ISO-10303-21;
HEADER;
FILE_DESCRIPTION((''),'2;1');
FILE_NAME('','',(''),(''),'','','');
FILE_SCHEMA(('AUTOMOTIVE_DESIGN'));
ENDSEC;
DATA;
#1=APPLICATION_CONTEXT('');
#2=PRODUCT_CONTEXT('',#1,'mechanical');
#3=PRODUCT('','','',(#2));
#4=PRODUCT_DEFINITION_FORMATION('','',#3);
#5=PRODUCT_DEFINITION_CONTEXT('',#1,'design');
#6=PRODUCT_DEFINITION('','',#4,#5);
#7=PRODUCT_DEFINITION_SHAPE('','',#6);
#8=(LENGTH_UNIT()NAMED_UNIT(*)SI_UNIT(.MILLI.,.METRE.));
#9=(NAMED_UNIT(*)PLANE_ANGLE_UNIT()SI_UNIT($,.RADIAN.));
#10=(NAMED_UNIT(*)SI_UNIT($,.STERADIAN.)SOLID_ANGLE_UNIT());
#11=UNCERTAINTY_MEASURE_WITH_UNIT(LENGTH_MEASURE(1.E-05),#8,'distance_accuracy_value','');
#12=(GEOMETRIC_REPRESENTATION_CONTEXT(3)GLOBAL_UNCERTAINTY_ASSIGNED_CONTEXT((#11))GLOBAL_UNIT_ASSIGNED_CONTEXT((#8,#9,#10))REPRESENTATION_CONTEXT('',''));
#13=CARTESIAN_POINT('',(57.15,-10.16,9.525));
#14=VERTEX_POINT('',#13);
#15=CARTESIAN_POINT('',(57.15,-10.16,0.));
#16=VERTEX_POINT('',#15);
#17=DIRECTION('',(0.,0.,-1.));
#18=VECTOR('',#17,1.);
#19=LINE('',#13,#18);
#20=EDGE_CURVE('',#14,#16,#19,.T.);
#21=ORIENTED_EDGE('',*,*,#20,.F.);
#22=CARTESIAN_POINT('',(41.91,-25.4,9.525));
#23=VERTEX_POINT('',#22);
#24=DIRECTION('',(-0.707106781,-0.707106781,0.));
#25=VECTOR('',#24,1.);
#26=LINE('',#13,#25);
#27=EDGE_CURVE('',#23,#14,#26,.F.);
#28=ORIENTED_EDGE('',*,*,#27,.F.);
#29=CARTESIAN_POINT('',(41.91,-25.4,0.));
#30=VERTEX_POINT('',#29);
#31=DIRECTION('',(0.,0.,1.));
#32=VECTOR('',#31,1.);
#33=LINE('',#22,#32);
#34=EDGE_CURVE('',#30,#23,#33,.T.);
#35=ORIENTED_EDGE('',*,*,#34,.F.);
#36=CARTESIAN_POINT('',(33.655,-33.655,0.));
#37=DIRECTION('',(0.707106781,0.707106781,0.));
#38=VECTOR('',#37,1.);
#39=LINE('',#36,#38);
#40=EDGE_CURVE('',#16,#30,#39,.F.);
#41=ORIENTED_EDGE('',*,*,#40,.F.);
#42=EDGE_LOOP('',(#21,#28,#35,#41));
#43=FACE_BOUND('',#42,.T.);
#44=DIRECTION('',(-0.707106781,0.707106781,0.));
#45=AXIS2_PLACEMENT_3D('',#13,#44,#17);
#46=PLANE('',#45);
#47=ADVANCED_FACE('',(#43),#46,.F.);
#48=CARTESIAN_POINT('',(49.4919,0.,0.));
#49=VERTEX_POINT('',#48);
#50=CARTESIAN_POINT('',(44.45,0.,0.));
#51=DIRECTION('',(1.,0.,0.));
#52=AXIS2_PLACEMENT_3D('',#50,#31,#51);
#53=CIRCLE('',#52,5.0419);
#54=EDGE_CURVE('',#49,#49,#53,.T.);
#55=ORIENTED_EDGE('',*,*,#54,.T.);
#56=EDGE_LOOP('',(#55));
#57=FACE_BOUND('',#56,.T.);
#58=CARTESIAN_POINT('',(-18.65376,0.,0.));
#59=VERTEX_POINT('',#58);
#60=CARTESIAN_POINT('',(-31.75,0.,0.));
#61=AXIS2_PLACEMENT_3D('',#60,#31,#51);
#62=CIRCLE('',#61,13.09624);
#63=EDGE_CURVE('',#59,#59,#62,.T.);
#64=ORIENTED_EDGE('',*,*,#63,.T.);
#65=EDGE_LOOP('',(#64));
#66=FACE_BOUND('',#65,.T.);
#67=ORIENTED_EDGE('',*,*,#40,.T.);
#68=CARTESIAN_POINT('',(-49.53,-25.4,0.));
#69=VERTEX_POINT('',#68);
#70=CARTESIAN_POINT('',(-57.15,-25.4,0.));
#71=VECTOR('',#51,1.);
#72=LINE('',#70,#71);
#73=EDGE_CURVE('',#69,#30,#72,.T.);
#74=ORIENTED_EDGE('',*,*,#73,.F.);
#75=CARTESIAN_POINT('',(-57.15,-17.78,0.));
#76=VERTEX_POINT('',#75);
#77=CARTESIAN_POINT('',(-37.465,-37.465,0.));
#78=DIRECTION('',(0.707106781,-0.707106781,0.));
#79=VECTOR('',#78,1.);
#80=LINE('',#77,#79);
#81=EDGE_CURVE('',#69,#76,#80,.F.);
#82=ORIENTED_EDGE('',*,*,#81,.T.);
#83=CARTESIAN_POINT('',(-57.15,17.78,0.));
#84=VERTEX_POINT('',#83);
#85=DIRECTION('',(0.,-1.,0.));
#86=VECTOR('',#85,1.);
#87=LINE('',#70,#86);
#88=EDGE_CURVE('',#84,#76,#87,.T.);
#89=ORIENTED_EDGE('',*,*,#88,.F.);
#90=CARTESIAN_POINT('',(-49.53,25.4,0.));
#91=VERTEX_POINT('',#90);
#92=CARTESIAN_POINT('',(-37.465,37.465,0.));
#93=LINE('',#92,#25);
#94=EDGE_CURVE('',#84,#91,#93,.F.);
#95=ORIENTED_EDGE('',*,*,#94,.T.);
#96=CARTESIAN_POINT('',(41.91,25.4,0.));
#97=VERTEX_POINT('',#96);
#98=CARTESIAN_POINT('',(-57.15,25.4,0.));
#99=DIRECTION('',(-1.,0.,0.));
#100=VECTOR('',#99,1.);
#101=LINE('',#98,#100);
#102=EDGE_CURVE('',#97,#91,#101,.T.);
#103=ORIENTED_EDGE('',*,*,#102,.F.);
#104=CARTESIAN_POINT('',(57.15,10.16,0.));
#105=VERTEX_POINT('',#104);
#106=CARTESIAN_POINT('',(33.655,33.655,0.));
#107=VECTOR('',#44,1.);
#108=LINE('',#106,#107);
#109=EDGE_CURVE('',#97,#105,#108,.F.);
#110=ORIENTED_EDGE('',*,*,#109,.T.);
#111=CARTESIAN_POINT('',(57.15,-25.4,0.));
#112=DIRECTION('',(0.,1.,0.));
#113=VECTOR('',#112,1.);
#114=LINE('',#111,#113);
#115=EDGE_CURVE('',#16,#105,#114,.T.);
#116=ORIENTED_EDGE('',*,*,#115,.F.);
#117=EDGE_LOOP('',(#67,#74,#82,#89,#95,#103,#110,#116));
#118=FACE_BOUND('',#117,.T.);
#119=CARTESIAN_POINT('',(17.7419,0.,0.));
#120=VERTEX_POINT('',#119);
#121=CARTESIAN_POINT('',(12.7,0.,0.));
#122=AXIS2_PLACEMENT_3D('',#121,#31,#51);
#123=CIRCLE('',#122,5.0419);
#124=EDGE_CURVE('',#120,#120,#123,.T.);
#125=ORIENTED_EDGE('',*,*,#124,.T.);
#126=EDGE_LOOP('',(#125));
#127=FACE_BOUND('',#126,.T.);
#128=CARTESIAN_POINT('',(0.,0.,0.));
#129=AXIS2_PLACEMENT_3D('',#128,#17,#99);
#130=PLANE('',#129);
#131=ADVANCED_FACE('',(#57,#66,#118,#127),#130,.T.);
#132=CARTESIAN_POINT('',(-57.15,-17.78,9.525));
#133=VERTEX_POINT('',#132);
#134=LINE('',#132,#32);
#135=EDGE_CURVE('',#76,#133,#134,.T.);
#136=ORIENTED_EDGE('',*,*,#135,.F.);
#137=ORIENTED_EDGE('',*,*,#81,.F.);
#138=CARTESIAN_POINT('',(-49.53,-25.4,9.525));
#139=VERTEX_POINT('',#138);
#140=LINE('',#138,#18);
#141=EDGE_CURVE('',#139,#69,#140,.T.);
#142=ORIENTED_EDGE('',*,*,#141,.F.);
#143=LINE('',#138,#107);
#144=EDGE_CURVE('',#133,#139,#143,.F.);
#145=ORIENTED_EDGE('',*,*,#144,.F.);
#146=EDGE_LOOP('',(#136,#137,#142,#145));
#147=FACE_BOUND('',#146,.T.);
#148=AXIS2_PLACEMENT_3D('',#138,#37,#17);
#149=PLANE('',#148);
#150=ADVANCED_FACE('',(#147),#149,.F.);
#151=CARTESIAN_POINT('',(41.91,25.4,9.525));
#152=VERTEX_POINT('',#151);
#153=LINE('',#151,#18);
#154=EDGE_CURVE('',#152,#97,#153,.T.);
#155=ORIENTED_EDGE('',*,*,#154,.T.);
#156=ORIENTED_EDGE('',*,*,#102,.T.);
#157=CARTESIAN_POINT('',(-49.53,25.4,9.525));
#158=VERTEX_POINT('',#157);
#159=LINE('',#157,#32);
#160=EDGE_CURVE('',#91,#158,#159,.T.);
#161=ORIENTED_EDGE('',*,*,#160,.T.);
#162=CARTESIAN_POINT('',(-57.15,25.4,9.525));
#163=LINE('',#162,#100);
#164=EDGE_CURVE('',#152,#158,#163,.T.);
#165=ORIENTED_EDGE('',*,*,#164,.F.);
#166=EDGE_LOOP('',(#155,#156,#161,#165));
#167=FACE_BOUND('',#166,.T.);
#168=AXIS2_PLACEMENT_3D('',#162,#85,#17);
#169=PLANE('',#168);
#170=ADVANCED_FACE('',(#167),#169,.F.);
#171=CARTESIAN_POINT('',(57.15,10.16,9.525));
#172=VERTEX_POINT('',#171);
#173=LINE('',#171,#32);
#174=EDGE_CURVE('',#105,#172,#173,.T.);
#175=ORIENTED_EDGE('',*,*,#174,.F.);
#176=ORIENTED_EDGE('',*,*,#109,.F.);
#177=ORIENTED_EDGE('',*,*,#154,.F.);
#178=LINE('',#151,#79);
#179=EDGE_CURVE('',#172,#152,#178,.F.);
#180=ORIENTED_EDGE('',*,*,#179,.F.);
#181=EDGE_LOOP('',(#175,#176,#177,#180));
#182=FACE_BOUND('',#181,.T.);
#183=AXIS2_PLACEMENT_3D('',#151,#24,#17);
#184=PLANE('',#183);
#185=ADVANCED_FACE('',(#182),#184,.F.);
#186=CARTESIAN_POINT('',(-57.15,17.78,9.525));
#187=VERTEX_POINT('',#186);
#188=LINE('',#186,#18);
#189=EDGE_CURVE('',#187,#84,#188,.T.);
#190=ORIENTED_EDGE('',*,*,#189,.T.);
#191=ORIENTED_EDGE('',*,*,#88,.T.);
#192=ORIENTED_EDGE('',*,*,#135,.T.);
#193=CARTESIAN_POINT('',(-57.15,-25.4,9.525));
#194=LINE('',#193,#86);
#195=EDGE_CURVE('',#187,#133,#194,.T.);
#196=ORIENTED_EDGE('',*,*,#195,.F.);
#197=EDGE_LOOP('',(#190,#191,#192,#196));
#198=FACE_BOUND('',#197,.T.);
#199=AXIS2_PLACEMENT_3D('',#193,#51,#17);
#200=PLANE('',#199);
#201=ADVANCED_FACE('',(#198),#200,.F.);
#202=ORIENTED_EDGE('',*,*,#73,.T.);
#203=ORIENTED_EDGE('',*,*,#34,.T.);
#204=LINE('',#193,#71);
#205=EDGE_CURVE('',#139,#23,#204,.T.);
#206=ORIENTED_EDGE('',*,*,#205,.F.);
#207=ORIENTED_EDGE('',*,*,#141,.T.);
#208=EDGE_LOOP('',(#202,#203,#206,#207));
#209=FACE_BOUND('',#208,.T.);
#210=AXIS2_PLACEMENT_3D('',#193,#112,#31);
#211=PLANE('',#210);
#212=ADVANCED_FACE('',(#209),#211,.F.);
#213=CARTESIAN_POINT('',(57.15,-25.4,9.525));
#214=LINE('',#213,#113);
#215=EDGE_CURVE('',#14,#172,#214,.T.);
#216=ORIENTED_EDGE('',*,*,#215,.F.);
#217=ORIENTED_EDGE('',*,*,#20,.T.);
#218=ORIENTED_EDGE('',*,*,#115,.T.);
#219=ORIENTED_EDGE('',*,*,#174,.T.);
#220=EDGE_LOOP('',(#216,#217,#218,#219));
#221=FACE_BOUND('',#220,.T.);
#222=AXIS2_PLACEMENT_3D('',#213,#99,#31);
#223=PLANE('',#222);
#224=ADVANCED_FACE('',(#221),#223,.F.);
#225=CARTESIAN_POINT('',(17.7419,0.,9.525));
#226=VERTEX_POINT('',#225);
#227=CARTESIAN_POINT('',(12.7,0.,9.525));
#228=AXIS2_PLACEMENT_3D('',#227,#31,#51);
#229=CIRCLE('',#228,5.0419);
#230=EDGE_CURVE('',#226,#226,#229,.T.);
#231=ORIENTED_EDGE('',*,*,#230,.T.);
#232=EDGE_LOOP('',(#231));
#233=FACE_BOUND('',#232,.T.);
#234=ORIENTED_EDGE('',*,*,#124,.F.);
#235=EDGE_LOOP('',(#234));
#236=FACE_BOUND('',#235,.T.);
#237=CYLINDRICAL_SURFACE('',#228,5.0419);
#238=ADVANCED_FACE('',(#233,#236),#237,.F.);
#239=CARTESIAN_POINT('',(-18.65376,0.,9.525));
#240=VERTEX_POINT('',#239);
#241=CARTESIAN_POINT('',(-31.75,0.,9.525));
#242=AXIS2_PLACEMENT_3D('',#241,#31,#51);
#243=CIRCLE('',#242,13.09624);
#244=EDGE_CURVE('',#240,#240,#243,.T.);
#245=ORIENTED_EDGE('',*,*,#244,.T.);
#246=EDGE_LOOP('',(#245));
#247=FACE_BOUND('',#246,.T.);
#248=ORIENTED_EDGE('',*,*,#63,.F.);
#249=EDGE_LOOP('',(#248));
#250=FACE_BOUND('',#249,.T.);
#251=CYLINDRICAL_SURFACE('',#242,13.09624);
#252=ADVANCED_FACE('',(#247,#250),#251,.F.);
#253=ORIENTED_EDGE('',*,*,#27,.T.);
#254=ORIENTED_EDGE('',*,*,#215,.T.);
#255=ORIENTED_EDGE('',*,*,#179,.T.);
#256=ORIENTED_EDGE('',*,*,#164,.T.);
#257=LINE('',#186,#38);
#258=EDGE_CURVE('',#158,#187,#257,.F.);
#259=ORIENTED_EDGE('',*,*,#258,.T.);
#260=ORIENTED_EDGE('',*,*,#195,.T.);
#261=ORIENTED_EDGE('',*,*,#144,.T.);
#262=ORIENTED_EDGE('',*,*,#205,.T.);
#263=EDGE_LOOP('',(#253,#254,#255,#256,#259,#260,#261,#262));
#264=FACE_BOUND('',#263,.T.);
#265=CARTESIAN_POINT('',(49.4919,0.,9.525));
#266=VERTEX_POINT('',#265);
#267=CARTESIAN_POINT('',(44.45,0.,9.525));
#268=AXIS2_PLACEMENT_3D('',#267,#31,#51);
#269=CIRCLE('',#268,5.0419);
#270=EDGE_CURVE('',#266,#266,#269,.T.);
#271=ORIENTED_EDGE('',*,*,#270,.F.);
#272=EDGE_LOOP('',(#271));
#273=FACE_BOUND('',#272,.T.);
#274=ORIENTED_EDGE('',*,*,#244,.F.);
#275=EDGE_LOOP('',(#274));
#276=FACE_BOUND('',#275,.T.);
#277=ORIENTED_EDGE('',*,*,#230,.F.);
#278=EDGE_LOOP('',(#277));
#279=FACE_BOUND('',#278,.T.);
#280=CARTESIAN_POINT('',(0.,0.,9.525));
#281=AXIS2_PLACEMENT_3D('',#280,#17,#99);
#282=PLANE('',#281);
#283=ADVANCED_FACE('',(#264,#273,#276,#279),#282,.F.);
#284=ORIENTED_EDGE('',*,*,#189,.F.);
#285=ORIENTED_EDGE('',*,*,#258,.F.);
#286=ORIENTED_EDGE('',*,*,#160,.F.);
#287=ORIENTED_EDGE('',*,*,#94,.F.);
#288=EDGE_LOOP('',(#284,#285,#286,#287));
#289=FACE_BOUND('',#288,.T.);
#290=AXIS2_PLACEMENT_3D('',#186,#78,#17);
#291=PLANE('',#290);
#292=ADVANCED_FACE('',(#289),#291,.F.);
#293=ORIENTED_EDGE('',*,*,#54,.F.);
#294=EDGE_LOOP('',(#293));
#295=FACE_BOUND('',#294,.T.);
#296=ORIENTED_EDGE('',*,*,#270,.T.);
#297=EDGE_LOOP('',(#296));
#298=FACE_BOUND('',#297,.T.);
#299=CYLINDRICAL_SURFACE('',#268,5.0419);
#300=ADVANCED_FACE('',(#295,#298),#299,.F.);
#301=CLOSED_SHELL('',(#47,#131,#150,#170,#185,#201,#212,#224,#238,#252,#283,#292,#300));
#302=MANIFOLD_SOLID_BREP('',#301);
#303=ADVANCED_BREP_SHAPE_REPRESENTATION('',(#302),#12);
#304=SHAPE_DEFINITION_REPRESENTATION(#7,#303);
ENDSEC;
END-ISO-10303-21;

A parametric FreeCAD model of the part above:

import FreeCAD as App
import Part
import Sketcher
from FreeCAD import Vector
Q = App.Units.Quantity


def edges_at(feature, points):
    """Names of the edges that pass closest to the given points."""
    edges = feature.Shape.Edges
    near = lambda p: min(range(len(edges)), key=lambda i: edges[i].distToShape(Part.Vertex(*p))[0])
    return sorted({f"Edge{near(p) + 1}" for p in points})


def add_polygon(sketch, points):
    """Adds a closed chain of lines whose ends are joined by coincident constraints."""
    first, n = sketch.GeometryCount, len(points)
    for a, b in zip(points, points[1:] + points[:1]):
        sketch.addGeometry(Part.LineSegment(App.Vector(*a, 0), App.Vector(*b, 0)), False)
    for i in range(n):
        sketch.addConstraint(Sketcher.Constraint("Coincident", first + i, 2, first + (i + 1) % n, 1))

doc = App.newDocument("Part")
body = doc.addObject("PartDesign::Body", "Body")

sketch1 = body.newObject("Sketcher::SketchObject", "Sketch")
sketch1.AttachmentSupport = (doc.getObject("XY_Plane"), [""])
sketch1.MapMode = "FlatFace"
add_polygon(sketch1, [(-57, 25), (-57, -25), (57, -25), (57, 25)])
sketch1.addConstraint(Sketcher.Constraint("Vertical", 0))
sketch1.addConstraint(Sketcher.Constraint("Horizontal", 1))
sketch1.addConstraint(Sketcher.Constraint("Vertical", 2))
sketch1.addConstraint(Sketcher.Constraint("Horizontal", 3))
sketch1.addConstraint(Sketcher.Constraint("Symmetric", 0, 2, 2, 2, -1, 1))
sketch1.addConstraint(Sketcher.Constraint("DistanceY", 0, 2, 0, 1, Q("2 in")))
sketch1.addConstraint(Sketcher.Constraint("DistanceX", 1, 1, 1, 2, Q("4.5 in")))
pad1 = body.newObject("PartDesign::Pad", "Pad")
pad1.Profile = sketch1
pad1.Length = Q("0.375 in")

sketch2 = body.newObject("Sketcher::SketchObject", "Sketch001")
sketch2.AttachmentSupport = (doc.getObject("XY_Plane"), [""])
sketch2.MapMode = "FlatFace"
sketch2.AttachmentOffset = App.Placement(Vector(0, 0, 0.375 * 25.4), App.Rotation())
sketch2.addGeometry(Part.Circle(Vector(44, 0, 0), Vector(0, 0, 1), 5), False)
sketch2.addGeometry(Part.Circle(Vector(13, 0, 0), Vector(0, 0, 1), 5), False)
sketch2.addConstraint(Sketcher.Constraint("Equal", 0, 1))
sketch2.addConstraint(Sketcher.Constraint("PointOnObject", 0, 3, -1))
sketch2.addConstraint(Sketcher.Constraint("PointOnObject", 1, 3, -1))
sketch2.addConstraint(Sketcher.Constraint("Diameter", 0, Q("0.397 in")))
sketch2.addConstraint(Sketcher.Constraint("DistanceX", -1, 1, 1, 3, Q("0.5 in")))
sketch2.addConstraint(Sketcher.Constraint("DistanceX", -1, 1, 0, 3, Q("1.75 in")))
doc.recompute()
hole = body.newObject("PartDesign::Hole", "Hole")
hole.Profile = sketch2
hole.ThreadType = "None"
hole.Diameter = Q("0.397 in")
hole.DepthType = "ThroughAll"

sketch3 = body.newObject("Sketcher::SketchObject", "Sketch002")
sketch3.AttachmentSupport = (doc.getObject("XY_Plane"), [""])
sketch3.MapMode = "FlatFace"
sketch3.AttachmentOffset = App.Placement(Vector(0, 0, 0.375 * 25.4), App.Rotation())
sketch3.addGeometry(Part.Circle(Vector(-32, 0, 0), Vector(0, 0, 1), 13), False)
sketch3.addConstraint(Sketcher.Constraint("PointOnObject", 0, 3, -1))
sketch3.addConstraint(Sketcher.Constraint("Diameter", 0, Q("1.0312 in")))
sketch3.addConstraint(Sketcher.Constraint("DistanceX", 0, 3, -1, 1, Q("1.25 in")))
doc.recompute()
hole2 = body.newObject("PartDesign::Hole", "Hole001")
hole2.Profile = sketch3
hole2.ThreadType = "None"
hole2.Diameter = Q("1.0312 in")
hole2.DepthType = "ThroughAll"
doc.recompute()

chamfer = body.newObject("PartDesign::Chamfer", "Chamfer")
chamfer.Base = (hole2, edges_at(hole2, [(-57.15, -25.4, 4.763), (-57.15, 25.4, 4.763)]))
chamfer.Size = Q("0.3 in")
doc.recompute()

chamfer2 = body.newObject("PartDesign::Chamfer", "Chamfer001")
chamfer2.Base = (chamfer, edges_at(chamfer, [(57.15, -25.4, 4.763), (57.15, 25.4, 4.763)]))
chamfer2.Size = Q("0.6 in")

doc.recompute()
